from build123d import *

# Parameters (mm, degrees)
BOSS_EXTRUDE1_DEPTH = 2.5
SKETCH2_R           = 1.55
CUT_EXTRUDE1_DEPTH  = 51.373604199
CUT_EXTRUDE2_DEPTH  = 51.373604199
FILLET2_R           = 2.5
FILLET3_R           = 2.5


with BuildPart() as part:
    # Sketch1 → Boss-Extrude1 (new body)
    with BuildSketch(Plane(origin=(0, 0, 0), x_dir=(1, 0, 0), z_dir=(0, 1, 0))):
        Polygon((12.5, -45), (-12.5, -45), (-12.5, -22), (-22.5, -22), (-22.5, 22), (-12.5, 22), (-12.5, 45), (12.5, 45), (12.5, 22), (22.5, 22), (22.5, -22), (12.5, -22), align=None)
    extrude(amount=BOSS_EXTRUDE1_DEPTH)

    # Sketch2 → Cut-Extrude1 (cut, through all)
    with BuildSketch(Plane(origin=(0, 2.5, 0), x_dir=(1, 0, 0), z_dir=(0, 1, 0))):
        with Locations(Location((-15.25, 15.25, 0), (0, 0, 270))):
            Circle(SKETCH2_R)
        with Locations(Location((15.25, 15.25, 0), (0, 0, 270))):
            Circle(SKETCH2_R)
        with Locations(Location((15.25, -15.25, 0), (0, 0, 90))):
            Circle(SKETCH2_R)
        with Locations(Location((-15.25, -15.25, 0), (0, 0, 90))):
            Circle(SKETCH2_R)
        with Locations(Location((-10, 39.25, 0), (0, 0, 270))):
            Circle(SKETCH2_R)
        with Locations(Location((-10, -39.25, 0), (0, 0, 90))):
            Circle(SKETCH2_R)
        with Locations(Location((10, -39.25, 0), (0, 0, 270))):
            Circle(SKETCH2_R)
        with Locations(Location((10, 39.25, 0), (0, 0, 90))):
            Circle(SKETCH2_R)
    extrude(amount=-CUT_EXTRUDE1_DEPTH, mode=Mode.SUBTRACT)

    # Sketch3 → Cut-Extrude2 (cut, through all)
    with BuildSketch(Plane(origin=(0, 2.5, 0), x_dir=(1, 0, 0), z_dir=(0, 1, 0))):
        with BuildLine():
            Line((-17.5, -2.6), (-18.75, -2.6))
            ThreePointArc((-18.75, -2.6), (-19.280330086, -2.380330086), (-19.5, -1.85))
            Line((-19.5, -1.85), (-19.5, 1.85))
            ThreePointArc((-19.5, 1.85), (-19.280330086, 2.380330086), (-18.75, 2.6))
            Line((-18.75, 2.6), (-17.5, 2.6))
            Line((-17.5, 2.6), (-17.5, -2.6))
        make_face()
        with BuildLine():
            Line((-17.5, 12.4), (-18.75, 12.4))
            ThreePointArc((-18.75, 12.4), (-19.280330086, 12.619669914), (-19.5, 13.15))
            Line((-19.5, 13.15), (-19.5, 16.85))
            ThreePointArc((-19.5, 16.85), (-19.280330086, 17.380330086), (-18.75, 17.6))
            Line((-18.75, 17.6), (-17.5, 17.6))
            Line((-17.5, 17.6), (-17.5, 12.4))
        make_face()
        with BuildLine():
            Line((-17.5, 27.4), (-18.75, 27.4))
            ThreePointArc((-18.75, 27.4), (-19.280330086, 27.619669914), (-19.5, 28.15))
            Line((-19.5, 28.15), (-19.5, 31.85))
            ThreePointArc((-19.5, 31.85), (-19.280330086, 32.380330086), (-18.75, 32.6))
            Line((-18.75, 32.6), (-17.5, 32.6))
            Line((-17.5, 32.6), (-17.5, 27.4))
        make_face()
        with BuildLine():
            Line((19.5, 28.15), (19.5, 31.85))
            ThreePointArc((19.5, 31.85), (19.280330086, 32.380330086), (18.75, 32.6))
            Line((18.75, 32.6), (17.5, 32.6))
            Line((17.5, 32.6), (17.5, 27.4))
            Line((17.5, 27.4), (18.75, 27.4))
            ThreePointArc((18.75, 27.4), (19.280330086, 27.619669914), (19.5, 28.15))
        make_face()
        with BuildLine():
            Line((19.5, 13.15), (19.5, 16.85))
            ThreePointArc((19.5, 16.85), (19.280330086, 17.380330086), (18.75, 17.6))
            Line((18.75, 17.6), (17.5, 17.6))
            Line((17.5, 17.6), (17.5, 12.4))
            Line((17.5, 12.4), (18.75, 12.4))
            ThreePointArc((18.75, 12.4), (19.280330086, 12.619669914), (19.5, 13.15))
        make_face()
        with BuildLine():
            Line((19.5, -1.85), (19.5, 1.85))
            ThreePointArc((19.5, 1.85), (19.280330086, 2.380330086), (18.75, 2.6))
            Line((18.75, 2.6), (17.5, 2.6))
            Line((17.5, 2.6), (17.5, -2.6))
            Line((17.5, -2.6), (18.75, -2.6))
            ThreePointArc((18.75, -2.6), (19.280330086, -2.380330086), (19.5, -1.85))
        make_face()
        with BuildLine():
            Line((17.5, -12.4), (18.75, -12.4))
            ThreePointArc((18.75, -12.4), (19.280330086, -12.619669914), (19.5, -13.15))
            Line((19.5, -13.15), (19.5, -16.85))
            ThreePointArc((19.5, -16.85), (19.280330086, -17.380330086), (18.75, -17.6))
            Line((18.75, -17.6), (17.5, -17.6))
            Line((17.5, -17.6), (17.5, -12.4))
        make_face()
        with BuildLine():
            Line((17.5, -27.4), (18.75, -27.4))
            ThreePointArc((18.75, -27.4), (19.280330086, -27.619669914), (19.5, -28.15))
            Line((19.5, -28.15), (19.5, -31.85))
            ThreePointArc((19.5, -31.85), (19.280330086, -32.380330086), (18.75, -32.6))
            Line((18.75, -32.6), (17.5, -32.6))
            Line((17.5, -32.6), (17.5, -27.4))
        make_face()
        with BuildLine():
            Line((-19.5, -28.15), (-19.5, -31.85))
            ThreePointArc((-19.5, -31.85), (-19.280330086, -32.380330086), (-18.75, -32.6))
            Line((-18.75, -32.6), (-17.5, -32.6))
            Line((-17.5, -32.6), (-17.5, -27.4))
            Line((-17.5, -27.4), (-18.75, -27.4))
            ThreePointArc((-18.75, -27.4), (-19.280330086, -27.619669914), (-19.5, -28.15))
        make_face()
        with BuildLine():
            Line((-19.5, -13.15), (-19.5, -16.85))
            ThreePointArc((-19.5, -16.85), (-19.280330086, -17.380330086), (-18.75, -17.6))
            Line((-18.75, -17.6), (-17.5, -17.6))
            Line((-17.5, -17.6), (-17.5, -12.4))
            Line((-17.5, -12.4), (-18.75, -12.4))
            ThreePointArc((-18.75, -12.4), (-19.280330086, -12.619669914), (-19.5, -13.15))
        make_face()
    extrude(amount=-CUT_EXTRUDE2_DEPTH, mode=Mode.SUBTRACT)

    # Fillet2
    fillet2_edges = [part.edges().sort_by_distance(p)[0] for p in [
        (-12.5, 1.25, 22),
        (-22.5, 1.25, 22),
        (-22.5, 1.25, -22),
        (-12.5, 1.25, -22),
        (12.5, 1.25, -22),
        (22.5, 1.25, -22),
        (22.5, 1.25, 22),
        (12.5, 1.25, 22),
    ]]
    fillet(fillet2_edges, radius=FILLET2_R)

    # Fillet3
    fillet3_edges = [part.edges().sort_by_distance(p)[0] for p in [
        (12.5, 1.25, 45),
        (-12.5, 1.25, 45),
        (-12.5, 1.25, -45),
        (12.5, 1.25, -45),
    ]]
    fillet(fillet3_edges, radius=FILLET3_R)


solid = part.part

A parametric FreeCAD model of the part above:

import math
import FreeCAD as App
import Part
import Sketcher


def edges_at(feature, points):
    """Names of the edges that pass closest to the given points."""
    edges = feature.Shape.Edges
    near = lambda p: min(range(len(edges)), key=lambda i: edges[i].distToShape(Part.Vertex(*p))[0])
    return sorted({f"Edge{near(p) + 1}" for p in points})


def add_polygon(sketch, points):
    """Adds a closed chain of lines whose ends are joined by coincident constraints."""
    first, n = sketch.GeometryCount, len(points)
    for a, b in zip(points, points[1:] + points[:1]):
        sketch.addGeometry(Part.LineSegment(App.Vector(*a, 0), App.Vector(*b, 0)), False)
    for i in range(n):
        sketch.addConstraint(Sketcher.Constraint("Coincident", first + i, 2, first + (i + 1) % n, 1))

doc = App.newDocument("Part")
body = doc.addObject("PartDesign::Body", "Body")

sketch1 = body.newObject("Sketcher::SketchObject", "Sketch")
sketch1.AttachmentSupport = (doc.getObject("XZ_Plane"), [""])
sketch1.MapMode = "FlatFace"
add_polygon(sketch1, [(-12, 45), (12, 45), (12, 22), (22, 22), (22, -22), (12, -22), (12, -45), (-12, -45), (-12, -22), (-22, -22), (-22, 22), (-12, 22)])
sketch1.addConstraint([
    Sketcher.Constraint("Horizontal", 0),
    Sketcher.Constraint("Vertical", 1),
    Sketcher.Constraint("Horizontal", 2),
    Sketcher.Constraint("Vertical", 3),
    Sketcher.Constraint("Horizontal", 4),
    Sketcher.Constraint("Vertical", 5),
    Sketcher.Constraint("Horizontal", 6),
    Sketcher.Constraint("Vertical", 7),
    Sketcher.Constraint("Horizontal", 8),
    Sketcher.Constraint("Vertical", 9),
    Sketcher.Constraint("Horizontal", 10),
    Sketcher.Constraint("Vertical", 11),
    Sketcher.Constraint("Symmetric", 0, 2, 6, 2, -1, 1),
    Sketcher.Constraint("Symmetric", 2, 2, 8, 2, -1, 1),
    Sketcher.Constraint("Symmetric", 4, 2, 10, 2, -1, 1),
    Sketcher.Constraint("Symmetric", 4, 2, 7, 2, -2),
    Sketcher.Constraint("DistanceX", 0, 1, 0, 2, 25.0),
    Sketcher.Constraint("DistanceX", 2, 1, 2, 2, 10.0),
    Sketcher.Constraint("DistanceY", 1, 2, 1, 1, 23.0),
    Sketcher.Constraint("DistanceY", 3, 2, 3, 1, 44.0),
])
pad1 = body.newObject("PartDesign::Pad", "Pad")
pad1.Profile = sketch1
pad1.Length = 2.5
pad1.Reversed = True

sketch2 = body.newObject("Sketcher::SketchObject", "Sketch001")
sketch2.AttachmentSupport = (doc.getObject("XZ_Plane"), [""])
sketch2.MapMode = "FlatFace"
sketch2.AttachmentOffset = App.Placement(App.Vector(0, 0, -2.5), App.Rotation())
sketch2.addGeometry([
    Part.Circle(App.Vector(-15.2, -15.2, 0), App.Vector(0, 0, 1), 1.6),
    Part.Circle(App.Vector(15.2, -15.2, 0), App.Vector(0, 0, 1), 1.6),
    Part.Circle(App.Vector(15.2, 15.2, 0), App.Vector(0, 0, 1), 1.6),
    Part.Circle(App.Vector(-15.2, 15.2, 0), App.Vector(0, 0, 1), 1.6),
    Part.Circle(App.Vector(-10, -39.2, 0), App.Vector(0, 0, 1), 1.6),
    Part.Circle(App.Vector(-10, 39.2, 0), App.Vector(0, 0, 1), 1.6),
    Part.Circle(App.Vector(10, 39.2, 0), App.Vector(0, 0, 1), 1.6),
    Part.Circle(App.Vector(10, -39.2, 0), App.Vector(0, 0, 1), 1.6),
], False)
sketch2.addConstraint([
    Sketcher.Constraint("Equal", 0, 1),
    Sketcher.Constraint("Equal", 1, 2),
    Sketcher.Constraint("Equal", 2, 3),
    Sketcher.Constraint("Equal", 3, 4),
    Sketcher.Constraint("Equal", 4, 5),
    Sketcher.Constraint("Equal", 5, 6),
    Sketcher.Constraint("Equal", 6, 7),
    Sketcher.Constraint("Symmetric", 0, 3, 2, 3, -1, 1),
    Sketcher.Constraint("Symmetric", 1, 3, 3, 3, -1, 1),
    Sketcher.Constraint("Symmetric", 4, 3, 6, 3, -1, 1),
    Sketcher.Constraint("Symmetric", 5, 3, 7, 3, -1, 1),
    Sketcher.Constraint("Symmetric", 0, 3, 1, 3, -2),
    Sketcher.Constraint("Symmetric", 5, 3, 6, 3, -2),
    Sketcher.Constraint("Diameter", 0, 3.1),
    Sketcher.Constraint("DistanceX", 4, 3, -1, 1, 10.0),
    Sketcher.Constraint("DistanceY", 4, 3, 0, 3, 24.0),
    Sketcher.Constraint("DistanceX", 0, 3, 1, 3, 30.5),
    Sketcher.Constraint("DistanceY", 1, 3, 2, 3, 30.5),
])
pocket1 = body.newObject("PartDesign::Pocket", "Pocket")
pocket1.Profile = sketch2
pocket1.Type = "ThroughAll"
pocket1.Reversed = True

sketch3 = body.newObject("Sketcher::SketchObject", "Sketch002")
sketch3.AttachmentSupport = (doc.getObject("XZ_Plane"), [""])
sketch3.MapMode = "FlatFace"
sketch3.AttachmentOffset = App.Placement(App.Vector(0, 0, -2.5), App.Rotation())
sketch3.addGeometry([
    Part.LineSegment(App.Vector(-18.8, 2.6, 0), App.Vector(-17.5, 2.6, 0)),
    Part.LineSegment(App.Vector(-17.5, 2.6, 0), App.Vector(-17.5, -2.6, 0)),
    Part.LineSegment(App.Vector(-17.5, -2.6, 0), App.Vector(-18.8, -2.6, 0)),
    Part.ArcOfCircle(Part.Circle(App.Vector(-18.8, -1.9, 0), App.Vector(0, 0, 1), 0.8), math.radians(180), math.radians(270)),
    Part.LineSegment(App.Vector(-19.5, -1.9, 0), App.Vector(-19.5, 1.9, 0)),
    Part.ArcOfCircle(Part.Circle(App.Vector(-18.8, 1.9, 0), App.Vector(0, 0, 1), 0.8), math.radians(90), math.radians(180)),
    Part.LineSegment(App.Vector(-18.8, -12.4, 0), App.Vector(-17.5, -12.4, 0)),
    Part.LineSegment(App.Vector(-17.5, -12.4, 0), App.Vector(-17.5, -17.6, 0)),
    Part.LineSegment(App.Vector(-17.5, -17.6, 0), App.Vector(-18.8, -17.6, 0)),
    Part.ArcOfCircle(Part.Circle(App.Vector(-18.8, -16.9, 0), App.Vector(0, 0, 1), 0.8), math.radians(180), math.radians(270)),
    Part.LineSegment(App.Vector(-19.5, -16.9, 0), App.Vector(-19.5, -13.2, 0)),
    Part.ArcOfCircle(Part.Circle(App.Vector(-18.8, -13.2, 0), App.Vector(0, 0, 1), 0.8), math.radians(90), math.radians(180)),
    Part.LineSegment(App.Vector(-18.8, -27.4, 0), App.Vector(-17.5, -27.4, 0)),
    Part.LineSegment(App.Vector(-17.5, -27.4, 0), App.Vector(-17.5, -32.6, 0)),
    Part.LineSegment(App.Vector(-17.5, -32.6, 0), App.Vector(-18.8, -32.6, 0)),
    Part.ArcOfCircle(Part.Circle(App.Vector(-18.8, -31.9, 0), App.Vector(0, 0, 1), 0.8), math.radians(180), math.radians(270)),
    Part.LineSegment(App.Vector(-19.5, -31.9, 0), App.Vector(-19.5, -28.1, 0)),
    Part.ArcOfCircle(Part.Circle(App.Vector(-18.8, -28.1, 0), App.Vector(0, 0, 1), 0.8), math.radians(90), math.radians(180)),
    Part.LineSegment(App.Vector(19.5, -28.1, 0), App.Vector(19.5, -31.9, 0)),
    Part.ArcOfCircle(Part.Circle(App.Vector(18.8, -31.9, 0), App.Vector(0, 0, 1), 0.8), math.radians(-90), math.radians(0)),
    Part.LineSegment(App.Vector(18.8, -32.6, 0), App.Vector(17.5, -32.6, 0)),
    Part.LineSegment(App.Vector(17.5, -32.6, 0), App.Vector(17.5, -27.4, 0)),
    Part.LineSegment(App.Vector(17.5, -27.4, 0), App.Vector(18.8, -27.4, 0)),
    Part.ArcOfCircle(Part.Circle(App.Vector(18.8, -28.1, 0), App.Vector(0, 0, 1), 0.8), math.radians(0), math.radians(90)),
    Part.LineSegment(App.Vector(19.5, -13.2, 0), App.Vector(19.5, -16.9, 0)),
    Part.ArcOfCircle(Part.Circle(App.Vector(18.8, -16.9, 0), App.Vector(0, 0, 1), 0.8), math.radians(-90), math.radians(0)),
    Part.LineSegment(App.Vector(18.8, -17.6, 0), App.Vector(17.5, -17.6, 0)),
    Part.LineSegment(App.Vector(17.5, -17.6, 0), App.Vector(17.5, -12.4, 0)),
    Part.LineSegment(App.Vector(17.5, -12.4, 0), App.Vector(18.8, -12.4, 0)),
    Part.ArcOfCircle(Part.Circle(App.Vector(18.8, -13.2, 0), App.Vector(0, 0, 1), 0.8), math.radians(0), math.radians(90)),
    Part.LineSegment(App.Vector(19.5, 1.9, 0), App.Vector(19.5, -1.9, 0)),
    Part.ArcOfCircle(Part.Circle(App.Vector(18.8, -1.9, 0), App.Vector(0, 0, 1), 0.8), math.radians(-90), math.radians(0)),
    Part.LineSegment(App.Vector(18.8, -2.6, 0), App.Vector(17.5, -2.6, 0)),
    Part.LineSegment(App.Vector(17.5, -2.6, 0), App.Vector(17.5, 2.6, 0)),
    Part.LineSegment(App.Vector(17.5, 2.6, 0), App.Vector(18.8, 2.6, 0)),
    Part.ArcOfCircle(Part.Circle(App.Vector(18.8, 1.9, 0), App.Vector(0, 0, 1), 0.8), math.radians(0), math.radians(90)),
    Part.LineSegment(App.Vector(18.8, 12.4, 0), App.Vector(17.5, 12.4, 0)),
    Part.LineSegment(App.Vector(17.5, 12.4, 0), App.Vector(17.5, 17.6, 0)),
    Part.LineSegment(App.Vector(17.5, 17.6, 0), App.Vector(18.8, 17.6, 0)),
    Part.ArcOfCircle(Part.Circle(App.Vector(18.8, 16.9, 0), App.Vector(0, 0, 1), 0.8), math.radians(0), math.radians(90)),
    Part.LineSegment(App.Vector(19.5, 16.9, 0), App.Vector(19.5, 13.2, 0)),
    Part.ArcOfCircle(Part.Circle(App.Vector(18.8, 13.2, 0), App.Vector(0, 0, 1), 0.8), math.radians(-90), math.radians(0)),
    Part.LineSegment(App.Vector(18.8, 27.4, 0), App.Vector(17.5, 27.4, 0)),
    Part.LineSegment(App.Vector(17.5, 27.4, 0), App.Vector(17.5, 32.6, 0)),
    Part.LineSegment(App.Vector(17.5, 32.6, 0), App.Vector(18.8, 32.6, 0)),
    Part.ArcOfCircle(Part.Circle(App.Vector(18.8, 31.9, 0), App.Vector(0, 0, 1), 0.8), math.radians(0), math.radians(90)),
    Part.LineSegment(App.Vector(19.5, 31.9, 0), App.Vector(19.5, 28.1, 0)),
    Part.ArcOfCircle(Part.Circle(App.Vector(18.8, 28.1, 0), App.Vector(0, 0, 1), 0.8), math.radians(-90), math.radians(0)),
    Part.LineSegment(App.Vector(-19.5, 28.1, 0), App.Vector(-19.5, 31.9, 0)),
    Part.ArcOfCircle(Part.Circle(App.Vector(-18.8, 31.9, 0), App.Vector(0, 0, 1), 0.8), math.radians(90), math.radians(180)),
    Part.LineSegment(App.Vector(-18.8, 32.6, 0), App.Vector(-17.5, 32.6, 0)),
    Part.LineSegment(App.Vector(-17.5, 32.6, 0), App.Vector(-17.5, 27.4, 0)),
    Part.LineSegment(App.Vector(-17.5, 27.4, 0), App.Vector(-18.8, 27.4, 0)),
    Part.ArcOfCircle(Part.Circle(App.Vector(-18.8, 28.1, 0), App.Vector(0, 0, 1), 0.8), math.radians(180), math.radians(270)),
    Part.LineSegment(App.Vector(-19.5, 13.2, 0), App.Vector(-19.5, 16.9, 0)),
    Part.ArcOfCircle(Part.Circle(App.Vector(-18.8, 16.9, 0), App.Vector(0, 0, 1), 0.8), math.radians(90), math.radians(180)),
    Part.LineSegment(App.Vector(-18.8, 17.6, 0), App.Vector(-17.5, 17.6, 0)),
    Part.LineSegment(App.Vector(-17.5, 17.6, 0), App.Vector(-17.5, 12.4, 0)),
    Part.LineSegment(App.Vector(-17.5, 12.4, 0), App.Vector(-18.8, 12.4, 0)),
    Part.ArcOfCircle(Part.Circle(App.Vector(-18.8, 13.2, 0), App.Vector(0, 0, 1), 0.8), math.radians(180), math.radians(270)),
], False)
sketch3.addConstraint([
    Sketcher.Constraint("Coincident", 0, 2, 1, 1),
    Sketcher.Constraint("Coincident", 1, 2, 2, 1),
    Sketcher.Constraint("Tangent", 2, 2, 3, 2),
    Sketcher.Constraint("Tangent", 3, 1, 4, 1),
    Sketcher.Constraint("Tangent", 4, 2, 5, 2),
    Sketcher.Constraint("Tangent", 5, 1, 0, 1),
    Sketcher.Constraint("Coincident", 6, 2, 7, 1),
    Sketcher.Constraint("Coincident", 7, 2, 8, 1),
    Sketcher.Constraint("Tangent", 8, 2, 9, 2),
    Sketcher.Constraint("Tangent", 9, 1, 10, 1),
    Sketcher.Constraint("Tangent", 10, 2, 11, 2),
    Sketcher.Constraint("Tangent", 11, 1, 6, 1),
    Sketcher.Constraint("Coincident", 12, 2, 13, 1),
    Sketcher.Constraint("Coincident", 13, 2, 14, 1),
    Sketcher.Constraint("Tangent", 14, 2, 15, 2),
    Sketcher.Constraint("Tangent", 15, 1, 16, 1),
    Sketcher.Constraint("Tangent", 16, 2, 17, 2),
    Sketcher.Constraint("Tangent", 17, 1, 12, 1),
    Sketcher.Constraint("Tangent", 18, 2, 19, 2),
    Sketcher.Constraint("Tangent", 19, 1, 20, 1),
    Sketcher.Constraint("Coincident", 20, 2, 21, 1),
    Sketcher.Constraint("Coincident", 21, 2, 22, 1),
    Sketcher.Constraint("Tangent", 22, 2, 23, 2),
    Sketcher.Constraint("Tangent", 23, 1, 18, 1),
    Sketcher.Constraint("Tangent", 24, 2, 25, 2),
    Sketcher.Constraint("Tangent", 25, 1, 26, 1),
    Sketcher.Constraint("Coincident", 26, 2, 27, 1),
    Sketcher.Constraint("Coincident", 27, 2, 28, 1),
    Sketcher.Constraint("Tangent", 28, 2, 29, 2),
    Sketcher.Constraint("Tangent", 29, 1, 24, 1),
    Sketcher.Constraint("Tangent", 30, 2, 31, 2),
    Sketcher.Constraint("Tangent", 31, 1, 32, 1),
    Sketcher.Constraint("Coincident", 32, 2, 33, 1),
    Sketcher.Constraint("Coincident", 33, 2, 34, 1),
    Sketcher.Constraint("Tangent", 34, 2, 35, 2),
    Sketcher.Constraint("Tangent", 35, 1, 30, 1),
    Sketcher.Constraint("Coincident", 36, 2, 37, 1),
    Sketcher.Constraint("Coincident", 37, 2, 38, 1),
    Sketcher.Constraint("Tangent", 38, 2, 39, 2),
    Sketcher.Constraint("Tangent", 39, 1, 40, 1),
    Sketcher.Constraint("Tangent", 40, 2, 41, 2),
    Sketcher.Constraint("Tangent", 41, 1, 36, 1),
    Sketcher.Constraint("Coincident", 42, 2, 43, 1),
    Sketcher.Constraint("Coincident", 43, 2, 44, 1),
    Sketcher.Constraint("Tangent", 44, 2, 45, 2),
    Sketcher.Constraint("Tangent", 45, 1, 46, 1),
    Sketcher.Constraint("Tangent", 46, 2, 47, 2),
    Sketcher.Constraint("Tangent", 47, 1, 42, 1),
    Sketcher.Constraint("Tangent", 48, 2, 49, 2),
    Sketcher.Constraint("Tangent", 49, 1, 50, 1),
    Sketcher.Constraint("Coincident", 50, 2, 51, 1),
    Sketcher.Constraint("Coincident", 51, 2, 52, 1),
    Sketcher.Constraint("Tangent", 52, 2, 53, 2),
    Sketcher.Constraint("Tangent", 53, 1, 48, 1),
    Sketcher.Constraint("Tangent", 54, 2, 55, 2),
    Sketcher.Constraint("Tangent", 55, 1, 56, 1),
    Sketcher.Constraint("Coincident", 56, 2, 57, 1),
    Sketcher.Constraint("Coincident", 57, 2, 58, 1),
    Sketcher.Constraint("Tangent", 58, 2, 59, 2),
    Sketcher.Constraint("Tangent", 59, 1, 54, 1),
    Sketcher.Constraint("Horizontal", 0),
    Sketcher.Constraint("Vertical", 1),
    Sketcher.Constraint("Horizontal", 2),
    Sketcher.Constraint("Vertical", 4),
    Sketcher.Constraint("Horizontal", 6),
    Sketcher.Constraint("Vertical", 7),
    Sketcher.Constraint("Horizontal", 8),
    Sketcher.Constraint("Vertical", 10),
    Sketcher.Constraint("Horizontal", 12),
    Sketcher.Constraint("Vertical", 13),
    Sketcher.Constraint("Horizontal", 14),
    Sketcher.Constraint("Vertical", 16),
    Sketcher.Constraint("Vertical", 18),
    Sketcher.Constraint("Horizontal", 20),
    Sketcher.Constraint("Vertical", 21),
    Sketcher.Constraint("Horizontal", 22),
    Sketcher.Constraint("Vertical", 24),
    Sketcher.Constraint("Horizontal", 26),
    Sketcher.Constraint("Vertical", 27),
    Sketcher.Constraint("Horizontal", 28),
    Sketcher.Constraint("Vertical", 30),
    Sketcher.Constraint("Horizontal", 32),
    Sketcher.Constraint("Vertical", 33),
    Sketcher.Constraint("Horizontal", 34),
    Sketcher.Constraint("Horizontal", 36),
    Sketcher.Constraint("Vertical", 37),
    Sketcher.Constraint("Horizontal", 38),
    Sketcher.Constraint("Vertical", 40),
    Sketcher.Constraint("Horizontal", 42),
    Sketcher.Constraint("Vertical", 43),
    Sketcher.Constraint("Horizontal", 44),
    Sketcher.Constraint("Vertical", 46),
    Sketcher.Constraint("Vertical", 48),
    Sketcher.Constraint("Horizontal", 50),
    Sketcher.Constraint("Vertical", 51),
    Sketcher.Constraint("Horizontal", 52),
    Sketcher.Constraint("Vertical", 54),
    Sketcher.Constraint("Horizontal", 56),
    Sketcher.Constraint("Vertical", 57),
    Sketcher.Constraint("Horizontal", 58),
    Sketcher.Constraint("Equal", 3, 5),
    Sketcher.Constraint("Equal", 5, 9),
    Sketcher.Constraint("Equal", 9, 11),
    Sketcher.Constraint("Equal", 11, 15),
    Sketcher.Constraint("Equal", 15, 17),
    Sketcher.Constraint("Equal", 17, 19),
    Sketcher.Constraint("Equal", 19, 23),
    Sketcher.Constraint("Equal", 23, 25),
    Sketcher.Constraint("Equal", 25, 29),
    Sketcher.Constraint("Equal", 29, 31),
    Sketcher.Constraint("Equal", 31, 35),
    Sketcher.Constraint("Equal", 35, 39),
    Sketcher.Constraint("Equal", 39, 41),
    Sketcher.Constraint("Equal", 41, 45),
    Sketcher.Constraint("Equal", 45, 47),
    Sketcher.Constraint("Equal", 47, 49),
    Sketcher.Constraint("Equal", 49, 53),
    Sketcher.Constraint("Equal", 53, 55),
    Sketcher.Constraint("Equal", 55, 59),
    Sketcher.Constraint("Symmetric", 5, 3, 31, 3, -1, 1),
    Sketcher.Constraint("Symmetric", 9, 3, 39, 3, -1, 1),
    Sketcher.Constraint("Symmetric", 15, 3, 45, 3, -1, 1),
    Sketcher.Constraint("Symmetric", 19, 3, 49, 3, -1, 1),
    Sketcher.Constraint("Symmetric", 25, 3, 55, 3, -1, 1),
    Sketcher.Constraint("Symmetric", 1, 2, 33, 2, -1, 1),
    Sketcher.Constraint("Symmetric", 6, 2, 36, 2, -1, 1),
    Sketcher.Constraint("Symmetric", 12, 2, 42, 2, -1, 1),
    Sketcher.Constraint("Symmetric", 21, 2, 51, 2, -1, 1),
    Sketcher.Constraint("Symmetric", 27, 2, 57, 2, -1, 1),
    Sketcher.Constraint("Symmetric", 15, 3, 19, 3, -2),
    Sketcher.Constraint("Symmetric", 9, 3, 25, 3, -2),
    Sketcher.Constraint("Symmetric", 12, 2, 21, 2, -2),
    Sketcher.Constraint("Symmetric", 6, 2, 27, 2, -2),
    Sketcher.Constraint("Horizontal", 3, 3, 31, 3),
    Sketcher.Constraint("Vertical", 5, 3, 9, 3),
    Sketcher.Constraint("Vertical", 11, 3, 15, 3),
    Sketcher.Constraint("Vertical", 1, 2, 6, 2),
    Sketcher.Constraint("Vertical", 7, 2, 12, 2),
    Sketcher.Constraint("Equal", 1, 7),
    Sketcher.Constraint("Equal", 7, 13),
    Sketcher.Constraint("Radius", 3, 0.75),
    Sketcher.Constraint("DistanceY", 1, 2, 1, 1, 5.2),
    Sketcher.Constraint("DistanceX", 0, 1, 0, 2, 1.25),
    Sketcher.Constraint("DistanceX", 0, 2, -1, 1, 17.5),
    Sketcher.Constraint("DistanceY", 6, 2, -1, 1, 12.4),
    Sketcher.Constraint("DistanceY", 12, 2, -1, 1, 27.4),
])
pocket2 = body.newObject("PartDesign::Pocket", "Pocket001")
pocket2.Profile = sketch3
pocket2.Type = "ThroughAll"
pocket2.Reversed = True
doc.recompute()

fillet = body.newObject("PartDesign::Fillet", "Fillet")
fillet.Base = (pocket2, edges_at(pocket2, [
    (-12.5, 1.25, 22),
    (-22.5, 1.25, 22),
    (-22.5, 1.25, -22),
    (-12.5, 1.25, -22),
    (12.5, 1.25, -22),
    (22.5, 1.25, -22),
    (22.5, 1.25, 22),
    (12.5, 1.25, 22),
]))
fillet.Radius = 2.5
doc.recompute()

fillet2 = body.newObject("PartDesign::Fillet", "Fillet001")
fillet2.Base = (fillet, edges_at(fillet, [
    (12.5, 1.25, 45),
    (-12.5, 1.25, 45),
    (-12.5, 1.25, -45),
    (12.5, 1.25, -45),
]))
fillet2.Radius = 2.5

doc.recompute()
